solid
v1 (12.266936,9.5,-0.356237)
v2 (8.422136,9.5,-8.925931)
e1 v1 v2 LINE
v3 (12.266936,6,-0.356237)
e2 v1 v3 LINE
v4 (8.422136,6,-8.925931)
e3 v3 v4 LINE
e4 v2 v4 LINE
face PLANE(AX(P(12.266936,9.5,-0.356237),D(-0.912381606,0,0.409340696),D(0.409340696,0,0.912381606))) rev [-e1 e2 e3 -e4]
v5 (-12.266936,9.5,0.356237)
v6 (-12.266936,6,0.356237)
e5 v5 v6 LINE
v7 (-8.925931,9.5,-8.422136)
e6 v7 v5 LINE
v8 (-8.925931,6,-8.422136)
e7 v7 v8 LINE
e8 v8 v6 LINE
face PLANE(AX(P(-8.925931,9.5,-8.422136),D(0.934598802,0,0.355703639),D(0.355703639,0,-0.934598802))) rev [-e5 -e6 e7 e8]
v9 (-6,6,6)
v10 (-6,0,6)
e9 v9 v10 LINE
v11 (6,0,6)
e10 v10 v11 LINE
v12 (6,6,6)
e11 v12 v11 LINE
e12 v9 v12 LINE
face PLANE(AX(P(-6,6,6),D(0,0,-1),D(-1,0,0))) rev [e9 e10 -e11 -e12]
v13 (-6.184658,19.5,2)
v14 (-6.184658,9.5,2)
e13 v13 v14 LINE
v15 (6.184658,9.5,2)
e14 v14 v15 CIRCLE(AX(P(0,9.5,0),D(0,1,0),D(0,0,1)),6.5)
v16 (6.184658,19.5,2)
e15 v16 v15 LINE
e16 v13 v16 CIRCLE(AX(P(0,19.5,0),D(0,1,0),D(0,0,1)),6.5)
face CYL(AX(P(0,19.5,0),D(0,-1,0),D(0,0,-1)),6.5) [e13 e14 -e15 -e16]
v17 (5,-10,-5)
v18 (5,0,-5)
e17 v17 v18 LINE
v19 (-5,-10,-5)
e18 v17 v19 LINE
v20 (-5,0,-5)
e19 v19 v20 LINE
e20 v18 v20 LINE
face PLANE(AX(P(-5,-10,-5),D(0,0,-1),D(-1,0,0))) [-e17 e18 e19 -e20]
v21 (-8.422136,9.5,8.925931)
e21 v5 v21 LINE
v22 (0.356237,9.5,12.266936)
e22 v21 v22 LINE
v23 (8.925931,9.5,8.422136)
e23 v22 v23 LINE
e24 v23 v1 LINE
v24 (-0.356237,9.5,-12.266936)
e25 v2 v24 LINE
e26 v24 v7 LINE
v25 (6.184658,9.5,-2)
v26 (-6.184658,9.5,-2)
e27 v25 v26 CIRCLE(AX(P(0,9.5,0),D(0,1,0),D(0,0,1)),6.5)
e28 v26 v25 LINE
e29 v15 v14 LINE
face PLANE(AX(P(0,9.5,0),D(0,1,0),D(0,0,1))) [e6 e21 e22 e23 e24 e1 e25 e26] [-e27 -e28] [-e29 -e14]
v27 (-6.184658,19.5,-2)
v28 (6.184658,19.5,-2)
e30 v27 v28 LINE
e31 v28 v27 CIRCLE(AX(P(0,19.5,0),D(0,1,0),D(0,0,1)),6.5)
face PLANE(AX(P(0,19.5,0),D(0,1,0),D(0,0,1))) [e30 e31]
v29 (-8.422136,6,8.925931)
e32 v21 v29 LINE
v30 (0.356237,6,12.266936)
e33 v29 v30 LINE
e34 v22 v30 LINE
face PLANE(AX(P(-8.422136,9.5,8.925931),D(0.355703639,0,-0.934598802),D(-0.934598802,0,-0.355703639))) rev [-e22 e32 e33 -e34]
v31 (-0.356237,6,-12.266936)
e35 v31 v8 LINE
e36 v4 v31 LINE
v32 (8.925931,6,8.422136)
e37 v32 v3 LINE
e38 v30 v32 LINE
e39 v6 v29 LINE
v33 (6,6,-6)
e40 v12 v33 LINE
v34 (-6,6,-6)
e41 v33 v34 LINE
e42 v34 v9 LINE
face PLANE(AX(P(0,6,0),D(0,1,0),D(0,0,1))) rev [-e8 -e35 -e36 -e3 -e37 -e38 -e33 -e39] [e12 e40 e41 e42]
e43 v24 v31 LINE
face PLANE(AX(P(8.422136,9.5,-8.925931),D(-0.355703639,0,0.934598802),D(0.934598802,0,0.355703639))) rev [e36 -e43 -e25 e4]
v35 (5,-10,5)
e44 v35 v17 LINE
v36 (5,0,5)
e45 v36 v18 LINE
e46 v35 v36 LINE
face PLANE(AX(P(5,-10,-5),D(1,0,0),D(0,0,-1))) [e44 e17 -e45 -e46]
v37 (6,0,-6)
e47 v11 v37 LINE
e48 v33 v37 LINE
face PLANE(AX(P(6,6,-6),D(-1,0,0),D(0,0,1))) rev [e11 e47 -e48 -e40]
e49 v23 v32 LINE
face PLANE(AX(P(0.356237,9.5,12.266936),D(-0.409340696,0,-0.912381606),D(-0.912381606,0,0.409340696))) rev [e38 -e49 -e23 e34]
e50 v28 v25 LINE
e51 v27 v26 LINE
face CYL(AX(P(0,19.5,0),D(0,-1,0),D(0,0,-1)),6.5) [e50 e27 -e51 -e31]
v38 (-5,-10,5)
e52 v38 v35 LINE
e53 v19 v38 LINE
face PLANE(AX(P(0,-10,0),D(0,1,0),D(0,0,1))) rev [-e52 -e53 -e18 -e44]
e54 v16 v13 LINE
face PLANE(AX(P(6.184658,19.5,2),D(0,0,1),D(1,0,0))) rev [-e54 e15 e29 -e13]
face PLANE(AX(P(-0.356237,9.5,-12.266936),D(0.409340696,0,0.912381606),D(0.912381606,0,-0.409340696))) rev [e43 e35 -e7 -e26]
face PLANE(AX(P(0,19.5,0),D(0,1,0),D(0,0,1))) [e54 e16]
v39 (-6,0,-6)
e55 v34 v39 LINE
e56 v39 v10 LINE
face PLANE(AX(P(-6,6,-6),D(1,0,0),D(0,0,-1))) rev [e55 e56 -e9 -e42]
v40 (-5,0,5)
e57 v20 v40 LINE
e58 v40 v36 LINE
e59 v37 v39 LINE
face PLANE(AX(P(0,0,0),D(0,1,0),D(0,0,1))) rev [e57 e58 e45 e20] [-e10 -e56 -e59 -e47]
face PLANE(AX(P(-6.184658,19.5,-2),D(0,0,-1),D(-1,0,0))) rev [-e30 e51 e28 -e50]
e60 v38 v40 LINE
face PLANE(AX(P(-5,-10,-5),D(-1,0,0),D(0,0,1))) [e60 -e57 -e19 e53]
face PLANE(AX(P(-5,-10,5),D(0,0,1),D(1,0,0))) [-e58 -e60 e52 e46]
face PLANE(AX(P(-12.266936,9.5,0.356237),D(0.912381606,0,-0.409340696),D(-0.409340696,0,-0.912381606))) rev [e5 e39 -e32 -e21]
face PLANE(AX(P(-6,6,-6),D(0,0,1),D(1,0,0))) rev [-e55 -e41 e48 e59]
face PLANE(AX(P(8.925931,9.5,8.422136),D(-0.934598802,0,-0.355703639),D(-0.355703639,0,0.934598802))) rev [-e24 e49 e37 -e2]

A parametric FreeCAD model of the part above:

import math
import FreeCAD as App
import Part
import Sketcher

V = App.Vector


def add_polygon(sketch, points):
    """Adds a closed chain of lines whose ends are joined by coincident constraints."""
    first, n = sketch.GeometryCount, len(points)
    for a, b in zip(points, points[1:] + points[:1]):
        sketch.addGeometry(Part.LineSegment(App.Vector(*a, 0), App.Vector(*b, 0)), False)
    for i in range(n):
        sketch.addConstraint(Sketcher.Constraint("Coincident", first + i, 2, first + (i + 1) % n, 1))

doc = App.newDocument("Part")
body = doc.addObject("PartDesign::Body", "Body")

# Sketch on XZ plane
sketch1 = doc.addObject("Sketcher::SketchObject", "Sketch")
body.addObject(sketch1)
sketch1.AttachmentSupport = (doc.XZ_Plane, [""])
sketch1.MapMode = "FlatFace"
add_polygon(sketch1, [(-5, -5), (-5, 5), (5, 5), (5, -5)])  # lines 0-3
sketch1.addConstraint(Sketcher.Constraint("Vertical", 0))
sketch1.addConstraint(Sketcher.Constraint("Horizontal", 1))
sketch1.addConstraint(Sketcher.Constraint("Vertical", 2))
sketch1.addConstraint(Sketcher.Constraint("Horizontal", 3))
sketch1.addConstraint(Sketcher.Constraint("Symmetric", 0, 2, 2, 2, -1, 1))
sketch1.addConstraint(Sketcher.Constraint("Equal", 3, 0))
sketch1.addConstraint(Sketcher.Constraint("DistanceX", 1, 1, 1, 2, 10.0))
pad1 = doc.addObject("PartDesign::Pad", "Pad")
body.addObject(pad1)
pad1.Profile = sketch1
pad1.Length = 10

# Sketch on XZ plane
sketch2 = doc.addObject("Sketcher::SketchObject", "Sketch001")
body.addObject(sketch2)
sketch2.AttachmentSupport = (doc.XZ_Plane, [""])
sketch2.MapMode = "FlatFace"
add_polygon(sketch2, [(-6, -6), (-6, 6), (6, 6), (6, -6)])  # lines 0-3
sketch2.addConstraint(Sketcher.Constraint("Vertical", 0))
sketch2.addConstraint(Sketcher.Constraint("Horizontal", 1))
sketch2.addConstraint(Sketcher.Constraint("Vertical", 2))
sketch2.addConstraint(Sketcher.Constraint("Horizontal", 3))
sketch2.addConstraint(Sketcher.Constraint("Symmetric", 0, 2, 2, 2, -1, 1))
sketch2.addConstraint(Sketcher.Constraint("Equal", 3, 0))
sketch2.addConstraint(Sketcher.Constraint("DistanceX", 1, 1, 1, 2, 12.0))
pad2 = doc.addObject("PartDesign::Pad", "Pad001")
body.addObject(pad2)
pad2.Profile = sketch2
pad2.Length = 6
pad2.Reversed = True

# Sketch on XZ plane
sketch3 = doc.addObject("Sketcher::SketchObject", "Sketch002")
body.addObject(sketch3)
sketch3.AttachmentSupport = (doc.XZ_Plane, [""])
sketch3.MapMode = "FlatFace"
sketch3.AttachmentOffset = App.Placement(V(0, 0, -6), App.Rotation())
add_polygon(sketch3, [(0, 12), (9, 8), (12, 0), (8, -9), (0, -12), (-9, -8), (-12, 0), (-8, 9)])  # lines 0-7
sketch3.addConstraint(Sketcher.Constraint("Symmetric", 0, 2, 4, 2, -1, 1))
sketch3.addConstraint(Sketcher.Constraint("Symmetric", 1, 2, 5, 2, -1, 1))
sketch3.addConstraint(Sketcher.Constraint("Symmetric", 2, 2, 6, 2, -1, 1))
sketch3.addConstraint(Sketcher.Constraint("Symmetric", 3, 2, 7, 2, -1, 1))
sketch3.addConstraint(Sketcher.Constraint("Perpendicular", 0, 2))
sketch3.addConstraint(Sketcher.Constraint("Perpendicular", 1, 3))
sketch3.addConstraint(Sketcher.Constraint("Equal", 0, 1))
sketch3.addConstraint(Sketcher.Constraint("Equal", 1, 2))
sketch3.addConstraint(Sketcher.Constraint("Equal", 2, 3))
sketch3.addConstraint(Sketcher.Constraint("DistanceX", 2, 2, 1, 2, 3.8448))
sketch3.addConstraint(Sketcher.Constraint("DistanceY", 3, 2, 1, 2, 11.910699))
sketch3.addConstraint(Sketcher.Constraint("DistanceX", -1, 1, 0, 2, 8.925931))
pad3 = doc.addObject("PartDesign::Pad", "Pad002")
body.addObject(pad3)
pad3.Profile = sketch3
pad3.Length = 3.5
pad3.Reversed = True

# Sketch on XZ plane
sketch4 = doc.addObject("Sketcher::SketchObject", "Sketch003")
body.addObject(sketch4)
sketch4.AttachmentSupport = (doc.XZ_Plane, [""])
sketch4.MapMode = "FlatFace"
sketch4.AttachmentOffset = App.Placement(V(0, 0, -9.5), App.Rotation())
sketch4.addGeometry(Part.LineSegment(V(-6, -2, 0), V(6, -2, 0)), False)
sketch4.addGeometry(Part.ArcOfCircle(Part.Circle(V(0, 0, 0), V(0, 0, 1), 6), math.radians(-162), math.radians(-18)), False)
sketch4.addGeometry(Part.LineSegment(V(6, 2, 0), V(-6, 2, 0)), False)
sketch4.addGeometry(Part.ArcOfCircle(Part.Circle(V(0, 0, 0), V(0, 0, 1), 6), math.radians(18), math.radians(162)), False)
sketch4.addConstraint(Sketcher.Constraint("Coincident", 0, 1, 1, 1))
sketch4.addConstraint(Sketcher.Constraint("Coincident", 1, 2, 0, 2))
sketch4.addConstraint(Sketcher.Constraint("Coincident", 2, 1, 3, 1))
sketch4.addConstraint(Sketcher.Constraint("Coincident", 3, 2, 2, 2))
sketch4.addConstraint(Sketcher.Constraint("Horizontal", 0))
sketch4.addConstraint(Sketcher.Constraint("Horizontal", 2))
sketch4.addConstraint(Sketcher.Constraint("Coincident", 1, 3, -1, 1))
sketch4.addConstraint(Sketcher.Constraint("Coincident", 3, 3, -1, 1))
sketch4.addConstraint(Sketcher.Constraint("Equal", 1, 3))
sketch4.addConstraint(Sketcher.Constraint("Vertical", 1, 2, 2, 1))
sketch4.addConstraint(Sketcher.Constraint("Radius", 1, 6.5))
sketch4.addConstraint(Sketcher.Constraint("DistanceY", 0, 1, -1, 1, 2.0))
pad4 = doc.addObject("PartDesign::Pad", "Pad003")
body.addObject(pad4)
pad4.Profile = sketch4
pad4.Length = 10
pad4.Reversed = True

doc.recompute()
